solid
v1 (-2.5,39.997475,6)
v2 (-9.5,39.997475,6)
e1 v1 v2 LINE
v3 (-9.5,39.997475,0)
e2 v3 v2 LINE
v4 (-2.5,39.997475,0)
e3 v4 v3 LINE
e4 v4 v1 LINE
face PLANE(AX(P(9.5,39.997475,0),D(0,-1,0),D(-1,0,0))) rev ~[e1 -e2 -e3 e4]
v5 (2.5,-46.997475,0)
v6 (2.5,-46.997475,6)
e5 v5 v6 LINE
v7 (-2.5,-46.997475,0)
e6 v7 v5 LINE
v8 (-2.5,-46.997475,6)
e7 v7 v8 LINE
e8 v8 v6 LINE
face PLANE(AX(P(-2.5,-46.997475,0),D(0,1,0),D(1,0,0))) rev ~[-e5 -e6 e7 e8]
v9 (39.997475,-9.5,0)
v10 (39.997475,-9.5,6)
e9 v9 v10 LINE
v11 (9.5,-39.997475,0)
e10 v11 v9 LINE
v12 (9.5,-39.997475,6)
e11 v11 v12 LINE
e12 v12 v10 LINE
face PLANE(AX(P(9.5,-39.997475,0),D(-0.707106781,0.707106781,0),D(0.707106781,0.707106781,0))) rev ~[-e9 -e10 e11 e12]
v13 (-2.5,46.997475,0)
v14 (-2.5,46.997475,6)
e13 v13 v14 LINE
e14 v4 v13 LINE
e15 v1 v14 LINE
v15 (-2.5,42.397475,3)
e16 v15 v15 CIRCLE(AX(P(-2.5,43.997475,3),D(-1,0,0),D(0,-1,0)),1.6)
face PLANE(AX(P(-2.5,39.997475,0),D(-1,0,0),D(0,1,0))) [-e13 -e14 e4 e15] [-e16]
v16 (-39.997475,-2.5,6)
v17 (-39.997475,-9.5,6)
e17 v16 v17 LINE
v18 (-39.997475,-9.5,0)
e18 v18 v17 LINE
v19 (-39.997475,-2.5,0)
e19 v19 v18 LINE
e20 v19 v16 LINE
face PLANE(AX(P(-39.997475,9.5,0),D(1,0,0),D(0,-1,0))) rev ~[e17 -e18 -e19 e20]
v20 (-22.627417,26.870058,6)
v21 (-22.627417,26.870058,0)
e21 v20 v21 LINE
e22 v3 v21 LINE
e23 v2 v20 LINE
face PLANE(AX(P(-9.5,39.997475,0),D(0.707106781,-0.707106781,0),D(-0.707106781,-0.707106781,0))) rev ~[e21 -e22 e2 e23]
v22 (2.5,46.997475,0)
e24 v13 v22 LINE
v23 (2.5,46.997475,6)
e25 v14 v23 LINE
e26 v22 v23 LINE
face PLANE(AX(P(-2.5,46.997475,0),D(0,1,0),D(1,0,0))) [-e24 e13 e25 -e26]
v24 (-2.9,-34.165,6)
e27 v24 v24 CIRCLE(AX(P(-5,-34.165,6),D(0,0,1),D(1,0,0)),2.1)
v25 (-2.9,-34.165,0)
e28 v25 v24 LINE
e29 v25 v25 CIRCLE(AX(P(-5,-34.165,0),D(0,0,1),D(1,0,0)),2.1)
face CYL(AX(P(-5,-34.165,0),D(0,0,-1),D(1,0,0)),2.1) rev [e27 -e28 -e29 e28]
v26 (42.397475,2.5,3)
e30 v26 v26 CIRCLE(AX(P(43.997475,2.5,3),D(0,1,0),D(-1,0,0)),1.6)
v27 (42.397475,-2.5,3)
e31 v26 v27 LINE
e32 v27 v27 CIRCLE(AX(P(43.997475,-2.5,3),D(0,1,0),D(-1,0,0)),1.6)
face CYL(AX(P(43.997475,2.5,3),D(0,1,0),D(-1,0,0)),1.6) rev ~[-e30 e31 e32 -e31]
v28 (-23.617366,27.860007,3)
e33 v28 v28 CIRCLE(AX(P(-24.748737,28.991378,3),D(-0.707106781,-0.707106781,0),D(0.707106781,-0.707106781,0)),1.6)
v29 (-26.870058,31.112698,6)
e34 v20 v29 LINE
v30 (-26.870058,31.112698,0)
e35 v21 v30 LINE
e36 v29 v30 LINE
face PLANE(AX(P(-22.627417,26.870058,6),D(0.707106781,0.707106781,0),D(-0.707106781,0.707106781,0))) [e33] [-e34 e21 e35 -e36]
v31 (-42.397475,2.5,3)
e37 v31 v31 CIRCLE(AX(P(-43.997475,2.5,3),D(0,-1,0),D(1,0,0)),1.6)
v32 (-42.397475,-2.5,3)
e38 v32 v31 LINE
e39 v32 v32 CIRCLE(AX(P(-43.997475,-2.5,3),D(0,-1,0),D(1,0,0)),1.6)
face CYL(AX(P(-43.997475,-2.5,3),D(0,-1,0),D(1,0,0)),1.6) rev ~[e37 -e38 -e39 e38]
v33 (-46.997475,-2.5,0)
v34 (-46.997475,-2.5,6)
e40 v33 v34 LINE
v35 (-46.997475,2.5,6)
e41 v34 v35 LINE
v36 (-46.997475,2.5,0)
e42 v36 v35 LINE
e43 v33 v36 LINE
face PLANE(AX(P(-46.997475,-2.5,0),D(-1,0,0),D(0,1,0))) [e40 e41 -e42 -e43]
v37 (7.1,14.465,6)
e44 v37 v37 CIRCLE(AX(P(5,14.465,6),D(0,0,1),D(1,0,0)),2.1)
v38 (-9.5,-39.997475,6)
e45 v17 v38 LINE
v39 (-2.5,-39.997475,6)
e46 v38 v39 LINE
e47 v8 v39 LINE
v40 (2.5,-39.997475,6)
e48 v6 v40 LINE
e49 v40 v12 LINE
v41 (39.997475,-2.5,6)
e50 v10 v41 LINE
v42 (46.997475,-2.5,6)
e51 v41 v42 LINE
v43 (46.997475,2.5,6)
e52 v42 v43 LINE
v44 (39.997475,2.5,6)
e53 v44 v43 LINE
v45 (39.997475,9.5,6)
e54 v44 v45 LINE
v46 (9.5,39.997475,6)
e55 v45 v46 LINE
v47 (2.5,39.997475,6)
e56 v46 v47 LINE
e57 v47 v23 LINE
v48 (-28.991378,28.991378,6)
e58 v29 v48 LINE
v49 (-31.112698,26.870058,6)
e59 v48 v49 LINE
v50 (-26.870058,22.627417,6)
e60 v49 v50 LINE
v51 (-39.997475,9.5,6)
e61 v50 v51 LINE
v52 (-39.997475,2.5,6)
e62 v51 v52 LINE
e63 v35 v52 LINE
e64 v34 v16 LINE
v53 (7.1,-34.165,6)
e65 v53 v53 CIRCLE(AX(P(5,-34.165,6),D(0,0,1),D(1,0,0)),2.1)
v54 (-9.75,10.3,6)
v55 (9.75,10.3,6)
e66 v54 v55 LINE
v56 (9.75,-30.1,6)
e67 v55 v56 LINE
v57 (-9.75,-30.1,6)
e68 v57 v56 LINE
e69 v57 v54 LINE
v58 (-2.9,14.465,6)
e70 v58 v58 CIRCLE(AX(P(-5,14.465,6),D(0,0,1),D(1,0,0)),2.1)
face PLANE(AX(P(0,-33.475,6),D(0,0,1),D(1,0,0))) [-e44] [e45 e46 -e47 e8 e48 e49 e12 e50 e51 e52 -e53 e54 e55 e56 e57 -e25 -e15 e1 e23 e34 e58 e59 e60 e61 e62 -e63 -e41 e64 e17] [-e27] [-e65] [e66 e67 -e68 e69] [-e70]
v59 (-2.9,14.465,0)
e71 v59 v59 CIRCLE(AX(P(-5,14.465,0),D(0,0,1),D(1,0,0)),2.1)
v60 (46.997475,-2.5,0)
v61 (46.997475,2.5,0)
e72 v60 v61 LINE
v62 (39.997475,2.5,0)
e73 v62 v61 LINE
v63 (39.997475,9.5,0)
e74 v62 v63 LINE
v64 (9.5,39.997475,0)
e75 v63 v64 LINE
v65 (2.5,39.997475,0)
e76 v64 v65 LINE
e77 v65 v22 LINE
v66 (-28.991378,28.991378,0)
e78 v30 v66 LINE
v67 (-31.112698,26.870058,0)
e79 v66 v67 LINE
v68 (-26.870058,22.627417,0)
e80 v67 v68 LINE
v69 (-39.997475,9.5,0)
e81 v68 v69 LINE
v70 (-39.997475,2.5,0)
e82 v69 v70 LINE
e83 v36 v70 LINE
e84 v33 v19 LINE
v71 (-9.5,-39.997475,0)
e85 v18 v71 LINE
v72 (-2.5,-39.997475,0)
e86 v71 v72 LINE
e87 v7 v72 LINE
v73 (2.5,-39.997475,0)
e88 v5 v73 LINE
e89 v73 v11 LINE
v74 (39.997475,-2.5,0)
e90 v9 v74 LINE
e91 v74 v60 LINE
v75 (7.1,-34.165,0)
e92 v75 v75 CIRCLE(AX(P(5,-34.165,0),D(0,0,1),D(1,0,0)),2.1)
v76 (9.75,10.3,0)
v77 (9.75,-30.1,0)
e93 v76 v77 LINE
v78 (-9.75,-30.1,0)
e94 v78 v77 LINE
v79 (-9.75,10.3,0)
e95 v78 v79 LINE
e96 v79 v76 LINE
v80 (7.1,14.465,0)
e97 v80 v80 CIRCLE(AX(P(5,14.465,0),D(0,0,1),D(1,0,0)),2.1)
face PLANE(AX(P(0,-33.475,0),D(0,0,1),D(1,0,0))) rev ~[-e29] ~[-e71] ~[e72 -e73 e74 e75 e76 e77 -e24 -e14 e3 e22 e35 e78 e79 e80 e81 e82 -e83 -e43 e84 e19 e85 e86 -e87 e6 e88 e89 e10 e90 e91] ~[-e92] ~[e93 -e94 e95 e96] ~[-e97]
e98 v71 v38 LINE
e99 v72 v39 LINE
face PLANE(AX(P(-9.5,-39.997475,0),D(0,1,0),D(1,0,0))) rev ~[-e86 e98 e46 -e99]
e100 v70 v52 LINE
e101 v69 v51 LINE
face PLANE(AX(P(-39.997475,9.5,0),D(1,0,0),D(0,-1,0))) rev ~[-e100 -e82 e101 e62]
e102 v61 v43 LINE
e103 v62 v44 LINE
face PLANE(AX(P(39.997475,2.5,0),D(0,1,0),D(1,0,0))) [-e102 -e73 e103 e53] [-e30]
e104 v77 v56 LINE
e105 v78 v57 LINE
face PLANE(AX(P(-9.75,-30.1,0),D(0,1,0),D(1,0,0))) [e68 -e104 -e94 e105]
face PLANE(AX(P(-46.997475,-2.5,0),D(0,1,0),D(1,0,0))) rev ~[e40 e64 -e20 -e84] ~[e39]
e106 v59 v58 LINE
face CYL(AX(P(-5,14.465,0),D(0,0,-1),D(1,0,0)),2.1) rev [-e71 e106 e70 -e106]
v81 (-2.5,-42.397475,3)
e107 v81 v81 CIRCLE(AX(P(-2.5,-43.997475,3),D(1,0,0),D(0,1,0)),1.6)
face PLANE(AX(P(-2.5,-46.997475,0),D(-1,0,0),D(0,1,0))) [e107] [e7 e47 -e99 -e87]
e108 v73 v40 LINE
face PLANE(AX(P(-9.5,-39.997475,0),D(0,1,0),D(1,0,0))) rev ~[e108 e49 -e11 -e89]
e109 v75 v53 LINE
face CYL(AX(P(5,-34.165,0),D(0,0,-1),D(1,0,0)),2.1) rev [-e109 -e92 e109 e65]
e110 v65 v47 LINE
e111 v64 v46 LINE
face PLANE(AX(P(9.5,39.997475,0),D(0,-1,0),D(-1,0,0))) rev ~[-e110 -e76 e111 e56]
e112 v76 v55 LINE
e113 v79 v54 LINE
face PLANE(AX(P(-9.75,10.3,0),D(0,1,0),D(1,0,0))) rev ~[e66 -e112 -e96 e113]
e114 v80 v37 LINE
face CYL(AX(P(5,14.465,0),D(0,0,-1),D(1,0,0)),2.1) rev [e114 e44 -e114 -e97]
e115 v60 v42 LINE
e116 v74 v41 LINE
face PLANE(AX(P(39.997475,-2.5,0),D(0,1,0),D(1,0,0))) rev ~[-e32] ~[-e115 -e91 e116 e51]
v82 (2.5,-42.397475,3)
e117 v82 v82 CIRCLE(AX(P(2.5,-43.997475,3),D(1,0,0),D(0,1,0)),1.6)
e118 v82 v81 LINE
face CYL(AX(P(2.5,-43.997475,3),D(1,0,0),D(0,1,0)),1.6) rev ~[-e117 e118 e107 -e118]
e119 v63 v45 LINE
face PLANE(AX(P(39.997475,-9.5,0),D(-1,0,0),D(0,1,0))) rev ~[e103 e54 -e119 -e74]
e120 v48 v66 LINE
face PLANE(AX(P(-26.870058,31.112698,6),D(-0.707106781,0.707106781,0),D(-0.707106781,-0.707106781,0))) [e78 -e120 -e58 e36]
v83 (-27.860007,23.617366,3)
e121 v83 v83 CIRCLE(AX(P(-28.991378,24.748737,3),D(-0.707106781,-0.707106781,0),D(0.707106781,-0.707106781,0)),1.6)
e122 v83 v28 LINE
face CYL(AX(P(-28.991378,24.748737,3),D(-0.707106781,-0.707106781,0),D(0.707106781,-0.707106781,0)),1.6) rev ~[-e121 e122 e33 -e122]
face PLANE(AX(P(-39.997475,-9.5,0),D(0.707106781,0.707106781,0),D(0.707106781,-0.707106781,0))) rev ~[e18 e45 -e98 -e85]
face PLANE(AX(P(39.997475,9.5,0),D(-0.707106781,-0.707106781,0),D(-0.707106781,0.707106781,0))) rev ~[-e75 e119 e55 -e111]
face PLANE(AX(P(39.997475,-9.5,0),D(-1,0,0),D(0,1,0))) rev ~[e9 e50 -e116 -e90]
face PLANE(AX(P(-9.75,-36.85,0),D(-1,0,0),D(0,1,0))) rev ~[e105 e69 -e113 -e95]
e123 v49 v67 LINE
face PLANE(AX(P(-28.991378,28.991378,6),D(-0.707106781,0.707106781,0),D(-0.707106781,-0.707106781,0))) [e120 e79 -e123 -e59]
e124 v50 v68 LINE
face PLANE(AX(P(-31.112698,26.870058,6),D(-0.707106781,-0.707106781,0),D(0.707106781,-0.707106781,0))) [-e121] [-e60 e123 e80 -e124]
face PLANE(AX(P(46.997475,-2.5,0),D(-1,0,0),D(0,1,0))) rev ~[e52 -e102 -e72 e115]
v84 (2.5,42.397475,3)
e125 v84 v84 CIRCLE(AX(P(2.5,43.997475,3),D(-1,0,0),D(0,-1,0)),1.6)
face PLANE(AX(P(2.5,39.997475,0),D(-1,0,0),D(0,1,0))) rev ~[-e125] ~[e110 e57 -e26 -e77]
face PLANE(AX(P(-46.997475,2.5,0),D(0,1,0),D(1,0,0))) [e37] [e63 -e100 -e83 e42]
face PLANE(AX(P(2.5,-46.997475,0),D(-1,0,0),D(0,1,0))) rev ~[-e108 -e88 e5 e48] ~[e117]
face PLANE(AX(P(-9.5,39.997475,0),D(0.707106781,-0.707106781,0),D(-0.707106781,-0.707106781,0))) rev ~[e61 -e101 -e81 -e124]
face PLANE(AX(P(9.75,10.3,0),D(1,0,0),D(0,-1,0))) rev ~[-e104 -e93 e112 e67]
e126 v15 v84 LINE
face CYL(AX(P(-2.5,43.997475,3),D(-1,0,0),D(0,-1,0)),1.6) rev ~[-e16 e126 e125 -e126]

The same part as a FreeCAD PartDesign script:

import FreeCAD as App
import Part
import Sketcher
Q = App.Units.Quantity


def add_polygon(sketch, points):
    """Adds a closed chain of lines whose ends are joined by coincident constraints."""
    first, n = sketch.GeometryCount, len(points)
    for a, b in zip(points, points[1:] + points[:1]):
        sketch.addGeometry(Part.LineSegment(App.Vector(*a, 0), App.Vector(*b, 0)), False)
    for i in range(n):
        sketch.addConstraint(Sketcher.Constraint("Coincident", first + i, 2, first + (i + 1) % n, 1))

doc = App.newDocument("Part")
body = doc.addObject("PartDesign::Body", "Body")

# Sketch on XY plane
sketch1 = body.newObject("Sketcher::SketchObject", "Sketch")
sketch1.AttachmentSupport = (doc.getObject("XY_Plane"), [""])
sketch1.MapMode = "FlatFace"
add_polygon(sketch1, [(-9.5, 40), (-40, 9.5), (-40, 2.5), (-47, 2.5), (-47, -2.5), (-40, -2.5), (-40, -9.5), (-9.5, -40), (-2.5, -40), (-2.5, -47), (2.5, -47), (2.5, -40), (9.5, -40), (40, -9.5), (40, -2.5), (47, -2.5), (47, 2.5), (40, 2.5), (40, 9.5), (9.5, 40), (2.5, 40), (2.5, 47), (-2.5, 47), (-2.5, 40)])  # lines 0-23
add_polygon(sketch1, [(-9.8, -30.1), (-9.8, 10.3), (9.8, 10.3), (9.8, -30.1)])  # lines 24-27
sketch1.addGeometry(Part.Circle(App.Vector(-5, 14.5, 0), App.Vector(0, 0, 1), 2.1), False)  # 28
sketch1.addGeometry(Part.Circle(App.Vector(5, 14.5, 0), App.Vector(0, 0, 1), 2.1), False)  # 29
sketch1.addGeometry(Part.Circle(App.Vector(5, -34.2, 0), App.Vector(0, 0, 1), 2.1), False)  # 30
sketch1.addGeometry(Part.Circle(App.Vector(-5, -34.2, 0), App.Vector(0, 0, 1), 2.1), False)  # 31
sketch1.addConstraint([
    Sketcher.Constraint("Vertical", 1),
    Sketcher.Constraint("Horizontal", 2),
    Sketcher.Constraint("Vertical", 3),
    Sketcher.Constraint("Horizontal", 4),
    Sketcher.Constraint("Vertical", 5),
    Sketcher.Constraint("Horizontal", 7),
    Sketcher.Constraint("Vertical", 8),
    Sketcher.Constraint("Horizontal", 9),
    Sketcher.Constraint("Vertical", 10),
    Sketcher.Constraint("Horizontal", 11),
    Sketcher.Constraint("Vertical", 13),
    Sketcher.Constraint("Horizontal", 14),
    Sketcher.Constraint("Vertical", 15),
    Sketcher.Constraint("Horizontal", 16),
    Sketcher.Constraint("Vertical", 17),
    Sketcher.Constraint("Horizontal", 19),
    Sketcher.Constraint("Vertical", 20),
    Sketcher.Constraint("Horizontal", 21),
    Sketcher.Constraint("Vertical", 22),
    Sketcher.Constraint("Horizontal", 23),
    Sketcher.Constraint("Vertical", 24),
    Sketcher.Constraint("Horizontal", 25),
    Sketcher.Constraint("Vertical", 26),
    Sketcher.Constraint("Horizontal", 27),
    Sketcher.Constraint("Equal", 28, 29),
    Sketcher.Constraint("Equal", 29, 30),
    Sketcher.Constraint("Equal", 30, 31),
    Sketcher.Constraint("Symmetric", 0, 2, 12, 2, -1, 1),
    Sketcher.Constraint("Symmetric", 2, 2, 14, 2, -1, 1),
    Sketcher.Constraint("Symmetric", 4, 2, 16, 2, -1, 1),
    Sketcher.Constraint("Symmetric", 6, 2, 18, 2, -1, 1),
    Sketcher.Constraint("Symmetric", 8, 2, 20, 2, -1, 1),
    Sketcher.Constraint("Symmetric", 10, 2, 22, 2, -1, 1),
    Sketcher.Constraint("Symmetric", 28, 3, 29, 3, -2),
    Sketcher.Constraint("Symmetric", 30, 3, 31, 3, -2),
    Sketcher.Constraint("Symmetric", 7, 2, 10, 2, -2),
    Sketcher.Constraint("Symmetric", 5, 2, 12, 2, -2),
    Sketcher.Constraint("Perpendicular", 0, 6),
    Sketcher.Constraint("Perpendicular", 6, 12),
    Sketcher.Constraint("Perpendicular", 12, 18),
    Sketcher.Constraint("Horizontal", 4, 2, 13, 2),
    Sketcher.Constraint("Vertical", 29, 3, 30, 3),
    Sketcher.Constraint("Vertical", 11, 2, 18, 2),
    Sketcher.Constraint("Equal", 4, 7),
    Sketcher.Constraint("Equal", 23, 1),
    Sketcher.Constraint("Equal", 21, 3),
    Sketcher.Constraint("Equal", 5, 8),
    Sketcher.Constraint("Diameter", 28, Q("4.2 mm")),
    Sketcher.Constraint("DistanceX", 2, 2, 2, 1, Q("7 mm")),
    Sketcher.Constraint("DistanceX", 9, 1, 9, 2, Q("5 mm")),
    Sketcher.Constraint("DistanceX", 25, 1, 25, 2, Q("19.5 mm")),
    Sketcher.Constraint("DistanceY", 24, 1, 24, 2, Q("40.4 mm")),
    Sketcher.Constraint("DistanceX", 28, 3, -1, 1, Q("5 mm")),
    Sketcher.Constraint("DistanceY", -1, 1, 24, 2, Q("10.3 mm")),
    Sketcher.Constraint("DistanceX", 24, 2, -1, 1, Q("9.75 mm")),
    Sketcher.Constraint("DistanceY", 30, 3, 29, 3, Q("48.63 mm")),
    Sketcher.Constraint("DistanceY", -1, 1, 28, 3, Q("14.465 mm")),
    Sketcher.Constraint("Distance", 0, Q("43.129942 mm")),
])
pad1 = body.newObject("PartDesign::Pad", "Pad")
pad1.Profile = sketch1
pad1.Length = 6

# Sketch on XZ plane
sketch2 = body.newObject("Sketcher::SketchObject", "Sketch001")
sketch2.AttachmentSupport = (doc.getObject("XZ_Plane"), [""])
sketch2.MapMode = "FlatFace"
sketch2.AttachmentOffset = App.Placement(App.Vector(0, 0, 2.5), App.Rotation())
sketch2.addGeometry(Part.Circle(App.Vector(-44, 3, 0), App.Vector(0, 0, 1), 1.6), False)
sketch2.addConstraint([
    Sketcher.Constraint("Diameter", 0, Q("3.2 mm")),
    Sketcher.Constraint("DistanceY", -1, 1, 0, 3, Q("3 mm")),
    Sketcher.Constraint("DistanceX", 0, 3, -1, 1, Q("43.997475 mm")),
])
pocket1 = body.newObject("PartDesign::Pocket", "Pocket")
pocket1.Profile = sketch2
pocket1.Length = 5

# Sketch on YZ plane
sketch3 = body.newObject("Sketcher::SketchObject", "Sketch002")
sketch3.AttachmentSupport = (doc.getObject("YZ_Plane"), [""])
sketch3.MapMode = "FlatFace"
sketch3.AttachmentOffset = App.Placement(App.Vector(0, 0, 2.5), App.Rotation())
sketch3.addGeometry(Part.Circle(App.Vector(-44, 3, 0), App.Vector(0, 0, 1), 1.6), False)
sketch3.addConstraint([
    Sketcher.Constraint("Diameter", 0, Q("3.2 mm")),
    Sketcher.Constraint("DistanceY", -1, 1, 0, 3, Q("3 mm")),
    Sketcher.Constraint("DistanceX", 0, 3, -1, 1, Q("43.997475 mm")),
])
pocket2 = body.newObject("PartDesign::Pocket", "Pocket001")
pocket2.Profile = sketch3
pocket2.Length = 5

# Sketch on XZ plane
sketch4 = body.newObject("Sketcher::SketchObject", "Sketch003")
sketch4.AttachmentSupport = (doc.getObject("XZ_Plane"), [""])
sketch4.MapMode = "FlatFace"
sketch4.AttachmentOffset = App.Placement(App.Vector(0, 0, -2.5), App.Rotation())
sketch4.addGeometry(Part.Circle(App.Vector(44, 3, 0), App.Vector(0, 0, 1), 1.6), False)
sketch4.addConstraint([
    Sketcher.Constraint("Diameter", 0, Q("3.2 mm")),
    Sketcher.Constraint("DistanceY", -1, 1, 0, 3, Q("3 mm")),
    Sketcher.Constraint("DistanceX", -1, 1, 0, 3, Q("43.997475 mm")),
])
pocket3 = body.newObject("PartDesign::Pocket", "Pocket002")
pocket3.Profile = sketch4
pocket3.Length = 5
pocket3.Reversed = True

# Sketch on YZ plane
sketch5 = body.newObject("Sketcher::SketchObject", "Sketch004")
sketch5.AttachmentSupport = (doc.getObject("YZ_Plane"), [""])
sketch5.MapMode = "FlatFace"
sketch5.AttachmentOffset = App.Placement(App.Vector(0, 0, -2.5), App.Rotation())
sketch5.addGeometry(Part.Circle(App.Vector(44, 3, 0), App.Vector(0, 0, 1), 1.6), False)
sketch5.addConstraint([
    Sketcher.Constraint("Diameter", 0, Q("3.2 mm")),
    Sketcher.Constraint("DistanceY", -1, 1, 0, 3, Q("3 mm")),
    Sketcher.Constraint("DistanceX", -1, 1, 0, 3, Q("43.997475 mm")),
])
pocket4 = body.newObject("PartDesign::Pocket", "Pocket003")
pocket4.Profile = sketch5
pocket4.Length = 5
pocket4.Reversed = True

# Sketch on XY plane
sketch6 = body.newObject("Sketcher::SketchObject", "Sketch005")
sketch6.AttachmentSupport = (doc.getObject("XY_Plane"), [""])
sketch6.MapMode = "FlatFace"
sketch6.AttachmentOffset = App.Placement(App.Vector(0, 0, 6), App.Rotation())
add_polygon(sketch6, [(-26.9, 22.6), (-24.7, 24.7), (-22.6, 26.9), (-26.9, 31.1), (-29, 29), (-31.1, 26.9)])  # lines 0-5
sketch6.addConstraint([
    Sketcher.Constraint("Parallel", 0, 1),
    Sketcher.Constraint("Perpendicular", 1, 2),
    Sketcher.Constraint("Perpendicular", 2, 3),
    Sketcher.Constraint("Parallel", 3, 4),
    Sketcher.Constraint("Perpendicular", 4, 5),
    Sketcher.Constraint("Horizontal", 1, 2, 4, 2),
    Sketcher.Constraint("Vertical", 2, 2, 5, 2),
    Sketcher.Constraint("Equal", 0, 1),
    Sketcher.Constraint("Equal", 1, 3),
    Sketcher.Constraint("Distance", 0, Q("3 mm")),
    Sketcher.Constraint("DistanceY", -1, 1, 2, 2, Q("31.112698 mm")),
    Sketcher.Constraint("DistanceX", 4, 2, -1, 1, Q("31.112698 mm")),
])
pad2 = body.newObject("PartDesign::Pad", "Pad001")
pad2.Profile = sketch6
pad2.Length = 6
pad2.Reversed = True

# Sketch on an angled plane
sketch7 = body.newObject("Sketcher::SketchObject", "Sketch006")
sketch7.Placement = App.Placement(App.Vector(-2.12132, -2.12132, 0), App.Rotation(App.Vector(0, 0, 1), App.Vector(-0.707106781, 0.707106781, 0), App.Vector(-0.707106781, -0.707106781, 0), "ZXY"))
sketch7.addGeometry(Part.Circle(App.Vector(3, 38, 0), App.Vector(0, 0, 1), 1.6), False)
sketch7.addConstraint([
    Sketcher.Constraint("Diameter", 0, Q("3.2 mm")),
    Sketcher.Constraint("DistanceX", -1, 1, 0, 3, Q("3 mm")),
    Sketcher.Constraint("DistanceY", -1, 1, 0, 3, Q("38 mm")),
])
pocket5 = body.newObject("PartDesign::Pocket", "Pocket004")
pocket5.Profile = sketch7
pocket5.Length = 6

doc.recompute()
